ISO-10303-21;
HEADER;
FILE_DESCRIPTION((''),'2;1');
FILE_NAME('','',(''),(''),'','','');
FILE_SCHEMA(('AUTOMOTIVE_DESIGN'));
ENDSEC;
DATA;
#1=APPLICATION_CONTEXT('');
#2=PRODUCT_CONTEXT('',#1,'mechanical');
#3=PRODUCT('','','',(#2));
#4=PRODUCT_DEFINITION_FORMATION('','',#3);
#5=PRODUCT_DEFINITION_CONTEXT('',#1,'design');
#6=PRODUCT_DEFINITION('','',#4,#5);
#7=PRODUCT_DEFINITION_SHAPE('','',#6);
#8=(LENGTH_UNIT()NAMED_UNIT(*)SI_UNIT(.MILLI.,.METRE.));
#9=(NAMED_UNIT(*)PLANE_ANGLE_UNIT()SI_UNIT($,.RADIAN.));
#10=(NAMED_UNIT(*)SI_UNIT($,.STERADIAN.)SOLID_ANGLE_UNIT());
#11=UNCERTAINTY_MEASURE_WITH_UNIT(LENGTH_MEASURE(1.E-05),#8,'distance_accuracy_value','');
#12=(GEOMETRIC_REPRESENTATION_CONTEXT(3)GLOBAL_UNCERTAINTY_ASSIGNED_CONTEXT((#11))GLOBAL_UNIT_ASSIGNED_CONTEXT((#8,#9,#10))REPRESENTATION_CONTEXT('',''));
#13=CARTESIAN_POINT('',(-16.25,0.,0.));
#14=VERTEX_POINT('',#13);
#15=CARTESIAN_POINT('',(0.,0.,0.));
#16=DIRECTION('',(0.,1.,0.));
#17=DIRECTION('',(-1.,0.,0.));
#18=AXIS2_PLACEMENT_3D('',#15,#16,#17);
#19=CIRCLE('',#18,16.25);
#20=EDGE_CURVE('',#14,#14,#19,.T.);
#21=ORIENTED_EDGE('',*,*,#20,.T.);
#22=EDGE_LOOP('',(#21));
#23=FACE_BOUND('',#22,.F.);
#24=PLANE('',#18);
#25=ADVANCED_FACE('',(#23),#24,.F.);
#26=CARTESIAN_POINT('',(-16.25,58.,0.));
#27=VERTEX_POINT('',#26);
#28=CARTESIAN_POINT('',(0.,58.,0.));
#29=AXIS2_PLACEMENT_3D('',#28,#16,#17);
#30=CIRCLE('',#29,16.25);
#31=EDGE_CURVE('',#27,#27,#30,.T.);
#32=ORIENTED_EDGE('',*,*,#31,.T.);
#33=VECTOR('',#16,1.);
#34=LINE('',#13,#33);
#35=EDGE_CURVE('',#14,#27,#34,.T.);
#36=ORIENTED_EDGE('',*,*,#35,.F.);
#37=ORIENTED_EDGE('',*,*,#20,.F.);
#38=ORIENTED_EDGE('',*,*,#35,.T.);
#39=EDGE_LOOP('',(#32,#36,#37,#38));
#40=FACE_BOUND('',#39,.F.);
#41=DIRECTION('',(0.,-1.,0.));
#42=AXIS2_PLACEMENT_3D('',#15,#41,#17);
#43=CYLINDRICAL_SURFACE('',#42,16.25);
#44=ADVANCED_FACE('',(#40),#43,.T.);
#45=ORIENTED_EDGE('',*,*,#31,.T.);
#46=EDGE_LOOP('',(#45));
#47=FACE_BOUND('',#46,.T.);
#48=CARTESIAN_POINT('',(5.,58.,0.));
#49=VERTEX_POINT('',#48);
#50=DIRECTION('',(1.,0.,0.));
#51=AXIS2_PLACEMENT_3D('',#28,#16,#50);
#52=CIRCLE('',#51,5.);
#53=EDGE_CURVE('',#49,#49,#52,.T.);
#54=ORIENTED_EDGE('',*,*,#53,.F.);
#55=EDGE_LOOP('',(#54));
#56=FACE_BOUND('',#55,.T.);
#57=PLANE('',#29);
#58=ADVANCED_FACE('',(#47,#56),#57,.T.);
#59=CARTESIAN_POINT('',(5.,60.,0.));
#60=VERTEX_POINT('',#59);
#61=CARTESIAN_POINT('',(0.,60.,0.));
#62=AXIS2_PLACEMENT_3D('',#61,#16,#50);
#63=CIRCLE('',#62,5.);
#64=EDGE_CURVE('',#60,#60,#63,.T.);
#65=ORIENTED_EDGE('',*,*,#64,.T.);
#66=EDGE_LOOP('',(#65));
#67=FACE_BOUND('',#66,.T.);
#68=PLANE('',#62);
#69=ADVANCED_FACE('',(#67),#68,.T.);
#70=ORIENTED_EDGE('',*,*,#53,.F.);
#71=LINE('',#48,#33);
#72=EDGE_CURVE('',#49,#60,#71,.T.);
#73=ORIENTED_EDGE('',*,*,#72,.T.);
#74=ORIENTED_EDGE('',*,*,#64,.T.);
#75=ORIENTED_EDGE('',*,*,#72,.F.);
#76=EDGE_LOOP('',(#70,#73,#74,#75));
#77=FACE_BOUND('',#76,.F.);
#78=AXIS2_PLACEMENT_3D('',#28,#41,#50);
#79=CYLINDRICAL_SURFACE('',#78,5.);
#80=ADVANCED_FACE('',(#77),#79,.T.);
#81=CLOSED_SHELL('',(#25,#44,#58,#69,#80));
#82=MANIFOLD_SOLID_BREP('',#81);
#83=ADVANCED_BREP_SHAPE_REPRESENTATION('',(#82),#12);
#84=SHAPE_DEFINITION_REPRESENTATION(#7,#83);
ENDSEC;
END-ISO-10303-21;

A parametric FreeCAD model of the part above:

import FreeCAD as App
import Part
import Sketcher

V = App.Vector

doc = App.newDocument("Part")
params = doc.addObject("Spreadsheet::Sheet", "Params")
for row, (alias, value) in enumerate([
    ("sketch1_diameter", "32.5 mm"),
    ("pad1_length", "58 mm"),
    ("sketch2_diameter", "10 mm"),
    ("pad2_length", "2 mm"),
], start=1):
    params.set(f"A{row}", alias)
    params.set(f"B{row}", "=" + value)
    params.setAlias(f"B{row}", alias)

body = doc.addObject("PartDesign::Body", "Body")

sketch1 = body.newObject("Sketcher::SketchObject", "Sketch")
sketch1.AttachmentSupport = (doc.getObject("XZ_Plane"), [""])
sketch1.MapMode = "FlatFace"
sketch1.addGeometry(Part.Circle(V(0, 0, 0), V(0, 0, 1), 16), False)
sketch1.addConstraint([
    Sketcher.Constraint("Coincident", 0, 3, -1, 1),
    Sketcher.Constraint("Diameter", 0, 32.5),
])
sketch1.setExpression("Constraints[1]", "Params.sketch1_diameter")
pad1 = body.newObject("PartDesign::Pad", "Pad")
pad1.Profile = sketch1
pad1.setExpression("Length", "Params.pad1_length")
pad1.Reversed = True

sketch2 = body.newObject("Sketcher::SketchObject", "Sketch001")
sketch2.AttachmentSupport = (doc.getObject("XZ_Plane"), [""])
sketch2.MapMode = "FlatFace"
sketch2.AttachmentOffset = App.Placement(V(0, 0, -58), App.Rotation())
sketch2.addGeometry(Part.Circle(V(0, 0, 0), V(0, 0, 1), 5), False)
sketch2.addConstraint([
    Sketcher.Constraint("Coincident", 0, 3, -1, 1),
    Sketcher.Constraint("Diameter", 0, 10.0),
])
sketch2.setExpression("Constraints[1]", "Params.sketch2_diameter")
pad2 = body.newObject("PartDesign::Pad", "Pad001")
pad2.Profile = sketch2
pad2.setExpression("Length", "Params.pad2_length")
pad2.Reversed = True

doc.recompute()
